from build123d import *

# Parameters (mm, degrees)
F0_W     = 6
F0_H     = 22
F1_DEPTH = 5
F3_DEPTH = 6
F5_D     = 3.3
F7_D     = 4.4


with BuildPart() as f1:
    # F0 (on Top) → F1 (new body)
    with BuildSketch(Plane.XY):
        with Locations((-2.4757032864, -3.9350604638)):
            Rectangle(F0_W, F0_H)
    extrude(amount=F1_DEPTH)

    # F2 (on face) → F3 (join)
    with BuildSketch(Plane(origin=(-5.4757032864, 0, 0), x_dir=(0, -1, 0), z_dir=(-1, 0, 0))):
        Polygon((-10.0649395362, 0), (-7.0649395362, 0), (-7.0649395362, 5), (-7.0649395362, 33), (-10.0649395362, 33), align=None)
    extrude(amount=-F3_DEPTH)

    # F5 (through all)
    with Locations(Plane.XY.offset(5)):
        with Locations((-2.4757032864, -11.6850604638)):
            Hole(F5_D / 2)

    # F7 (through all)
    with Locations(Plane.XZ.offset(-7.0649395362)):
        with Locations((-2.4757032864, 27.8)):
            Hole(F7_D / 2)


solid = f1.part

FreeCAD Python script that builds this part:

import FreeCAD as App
import Part
import Sketcher
Q = App.Units.Quantity


def add_polygon(sketch, points):
    """Adds a closed chain of lines whose ends are joined by coincident constraints."""
    first, n = sketch.GeometryCount, len(points)
    for a, b in zip(points, points[1:] + points[:1]):
        sketch.addGeometry(Part.LineSegment(App.Vector(*a, 0), App.Vector(*b, 0)), False)
    for i in range(n):
        sketch.addConstraint(Sketcher.Constraint("Coincident", first + i, 2, first + (i + 1) % n, 1))

doc = App.newDocument("Part")
body = doc.addObject("PartDesign::Body", "Body")

sketch1 = doc.addObject("Sketcher::SketchObject", "Sketch")
body.addObject(sketch1)
sketch1.AttachmentSupport = (doc.XY_Plane, [""])
sketch1.MapMode = "FlatFace"
add_polygon(sketch1, [(-5.475703, 7.06494), (-5.475703, -14.93506), (0.524297, -14.93506), (0.524297, 7.06494)])
sketch1.addConstraint(Sketcher.Constraint("Vertical", 0))
sketch1.addConstraint(Sketcher.Constraint("Horizontal", 1))
sketch1.addConstraint(Sketcher.Constraint("Vertical", 2))
sketch1.addConstraint(Sketcher.Constraint("Horizontal", 3))
sketch1.addConstraint(Sketcher.Constraint("DistanceX", 1, 1, 1, 2, Q("6 mm")))
sketch1.addConstraint(Sketcher.Constraint("DistanceY", 0, 2, 0, 1, Q("22 mm")))
sketch1.addConstraint(Sketcher.Constraint("DistanceY", 0, 2, -1, 1, Q("14.93506 mm")))
sketch1.addConstraint(Sketcher.Constraint("DistanceX", 0, 2, -1, 1, Q("5.475703 mm")))
pad1 = doc.addObject("PartDesign::Pad", "Pad")
body.addObject(pad1)
pad1.Profile = sketch1
pad1.Length = 5

sketch2 = doc.addObject("Sketcher::SketchObject", "Sketch001")
body.addObject(sketch2)
sketch2.AttachmentSupport = (doc.YZ_Plane, [""])
sketch2.MapMode = "FlatFace"
sketch2.AttachmentOffset = App.Placement(App.Vector(0, 0, -5.475703), App.Rotation())
add_polygon(sketch2, [(10.06494, 0), (7.06494, 0), (7.06494, 33), (10.06494, 33)])
sketch2.addConstraint(Sketcher.Constraint("Horizontal", 0))
sketch2.addConstraint(Sketcher.Constraint("Vertical", 1))
sketch2.addConstraint(Sketcher.Constraint("Horizontal", 2))
sketch2.addConstraint(Sketcher.Constraint("Vertical", 3))
sketch2.addConstraint(Sketcher.Constraint("PointOnObject", 0, 2, -1))
sketch2.addConstraint(Sketcher.Constraint("DistanceX", 0, 2, 0, 1, Q("3 mm")))
sketch2.addConstraint(Sketcher.Constraint("DistanceY", 1, 1, 1, 2, Q("33 mm")))
sketch2.addConstraint(Sketcher.Constraint("DistanceX", -1, 1, 0, 2, Q("7.06494 mm")))
pad2 = doc.addObject("PartDesign::Pad", "Pad001")
body.addObject(pad2)
pad2.Profile = sketch2
pad2.Length = 6

sketch3 = doc.addObject("Sketcher::SketchObject", "Sketch002")
body.addObject(sketch3)
sketch3.AttachmentSupport = (doc.XY_Plane, [""])
sketch3.MapMode = "FlatFace"
sketch3.AttachmentOffset = App.Placement(App.Vector(0, 0, 5), App.Rotation())
sketch3.addGeometry(Part.Circle(App.Vector(-2.475703, -11.68506, 0), App.Vector(0, 0, 1), 1.65), False)
sketch3.addConstraint(Sketcher.Constraint("Diameter", 0, Q("3.3 mm")))
sketch3.addConstraint(Sketcher.Constraint("DistanceY", 0, 3, -1, 1, Q("11.68506 mm")))
sketch3.addConstraint(Sketcher.Constraint("DistanceX", 0, 3, -1, 1, Q("2.475703 mm")))
doc.recompute()
hole = doc.addObject("PartDesign::Hole", "Hole")
body.addObject(hole)
hole.Profile = sketch3
hole.ThreadType = "None"
hole.Diameter = 3.3
hole.DepthType = "ThroughAll"

sketch4 = doc.addObject("Sketcher::SketchObject", "Sketch003")
body.addObject(sketch4)
sketch4.AttachmentSupport = (doc.XZ_Plane, [""])
sketch4.MapMode = "FlatFace"
sketch4.AttachmentOffset = App.Placement(App.Vector(0, 0, -7.06494), App.Rotation())
sketch4.addGeometry(Part.Circle(App.Vector(-2.475703, 27.8, 0), App.Vector(0, 0, 1), 2.2), False)
sketch4.addConstraint(Sketcher.Constraint("Diameter", 0, Q("4.4 mm")))
sketch4.addConstraint(Sketcher.Constraint("DistanceY", -1, 1, 0, 3, Q("27.8 mm")))
sketch4.addConstraint(Sketcher.Constraint("DistanceX", 0, 3, -1, 1, Q("2.475703 mm")))
doc.recompute()
hole2 = doc.addObject("PartDesign::Hole", "Hole001")
body.addObject(hole2)
hole2.Profile = sketch4
hole2.ThreadType = "None"
hole2.Diameter = 4.4
hole2.DepthType = "ThroughAll"

doc.recompute()
